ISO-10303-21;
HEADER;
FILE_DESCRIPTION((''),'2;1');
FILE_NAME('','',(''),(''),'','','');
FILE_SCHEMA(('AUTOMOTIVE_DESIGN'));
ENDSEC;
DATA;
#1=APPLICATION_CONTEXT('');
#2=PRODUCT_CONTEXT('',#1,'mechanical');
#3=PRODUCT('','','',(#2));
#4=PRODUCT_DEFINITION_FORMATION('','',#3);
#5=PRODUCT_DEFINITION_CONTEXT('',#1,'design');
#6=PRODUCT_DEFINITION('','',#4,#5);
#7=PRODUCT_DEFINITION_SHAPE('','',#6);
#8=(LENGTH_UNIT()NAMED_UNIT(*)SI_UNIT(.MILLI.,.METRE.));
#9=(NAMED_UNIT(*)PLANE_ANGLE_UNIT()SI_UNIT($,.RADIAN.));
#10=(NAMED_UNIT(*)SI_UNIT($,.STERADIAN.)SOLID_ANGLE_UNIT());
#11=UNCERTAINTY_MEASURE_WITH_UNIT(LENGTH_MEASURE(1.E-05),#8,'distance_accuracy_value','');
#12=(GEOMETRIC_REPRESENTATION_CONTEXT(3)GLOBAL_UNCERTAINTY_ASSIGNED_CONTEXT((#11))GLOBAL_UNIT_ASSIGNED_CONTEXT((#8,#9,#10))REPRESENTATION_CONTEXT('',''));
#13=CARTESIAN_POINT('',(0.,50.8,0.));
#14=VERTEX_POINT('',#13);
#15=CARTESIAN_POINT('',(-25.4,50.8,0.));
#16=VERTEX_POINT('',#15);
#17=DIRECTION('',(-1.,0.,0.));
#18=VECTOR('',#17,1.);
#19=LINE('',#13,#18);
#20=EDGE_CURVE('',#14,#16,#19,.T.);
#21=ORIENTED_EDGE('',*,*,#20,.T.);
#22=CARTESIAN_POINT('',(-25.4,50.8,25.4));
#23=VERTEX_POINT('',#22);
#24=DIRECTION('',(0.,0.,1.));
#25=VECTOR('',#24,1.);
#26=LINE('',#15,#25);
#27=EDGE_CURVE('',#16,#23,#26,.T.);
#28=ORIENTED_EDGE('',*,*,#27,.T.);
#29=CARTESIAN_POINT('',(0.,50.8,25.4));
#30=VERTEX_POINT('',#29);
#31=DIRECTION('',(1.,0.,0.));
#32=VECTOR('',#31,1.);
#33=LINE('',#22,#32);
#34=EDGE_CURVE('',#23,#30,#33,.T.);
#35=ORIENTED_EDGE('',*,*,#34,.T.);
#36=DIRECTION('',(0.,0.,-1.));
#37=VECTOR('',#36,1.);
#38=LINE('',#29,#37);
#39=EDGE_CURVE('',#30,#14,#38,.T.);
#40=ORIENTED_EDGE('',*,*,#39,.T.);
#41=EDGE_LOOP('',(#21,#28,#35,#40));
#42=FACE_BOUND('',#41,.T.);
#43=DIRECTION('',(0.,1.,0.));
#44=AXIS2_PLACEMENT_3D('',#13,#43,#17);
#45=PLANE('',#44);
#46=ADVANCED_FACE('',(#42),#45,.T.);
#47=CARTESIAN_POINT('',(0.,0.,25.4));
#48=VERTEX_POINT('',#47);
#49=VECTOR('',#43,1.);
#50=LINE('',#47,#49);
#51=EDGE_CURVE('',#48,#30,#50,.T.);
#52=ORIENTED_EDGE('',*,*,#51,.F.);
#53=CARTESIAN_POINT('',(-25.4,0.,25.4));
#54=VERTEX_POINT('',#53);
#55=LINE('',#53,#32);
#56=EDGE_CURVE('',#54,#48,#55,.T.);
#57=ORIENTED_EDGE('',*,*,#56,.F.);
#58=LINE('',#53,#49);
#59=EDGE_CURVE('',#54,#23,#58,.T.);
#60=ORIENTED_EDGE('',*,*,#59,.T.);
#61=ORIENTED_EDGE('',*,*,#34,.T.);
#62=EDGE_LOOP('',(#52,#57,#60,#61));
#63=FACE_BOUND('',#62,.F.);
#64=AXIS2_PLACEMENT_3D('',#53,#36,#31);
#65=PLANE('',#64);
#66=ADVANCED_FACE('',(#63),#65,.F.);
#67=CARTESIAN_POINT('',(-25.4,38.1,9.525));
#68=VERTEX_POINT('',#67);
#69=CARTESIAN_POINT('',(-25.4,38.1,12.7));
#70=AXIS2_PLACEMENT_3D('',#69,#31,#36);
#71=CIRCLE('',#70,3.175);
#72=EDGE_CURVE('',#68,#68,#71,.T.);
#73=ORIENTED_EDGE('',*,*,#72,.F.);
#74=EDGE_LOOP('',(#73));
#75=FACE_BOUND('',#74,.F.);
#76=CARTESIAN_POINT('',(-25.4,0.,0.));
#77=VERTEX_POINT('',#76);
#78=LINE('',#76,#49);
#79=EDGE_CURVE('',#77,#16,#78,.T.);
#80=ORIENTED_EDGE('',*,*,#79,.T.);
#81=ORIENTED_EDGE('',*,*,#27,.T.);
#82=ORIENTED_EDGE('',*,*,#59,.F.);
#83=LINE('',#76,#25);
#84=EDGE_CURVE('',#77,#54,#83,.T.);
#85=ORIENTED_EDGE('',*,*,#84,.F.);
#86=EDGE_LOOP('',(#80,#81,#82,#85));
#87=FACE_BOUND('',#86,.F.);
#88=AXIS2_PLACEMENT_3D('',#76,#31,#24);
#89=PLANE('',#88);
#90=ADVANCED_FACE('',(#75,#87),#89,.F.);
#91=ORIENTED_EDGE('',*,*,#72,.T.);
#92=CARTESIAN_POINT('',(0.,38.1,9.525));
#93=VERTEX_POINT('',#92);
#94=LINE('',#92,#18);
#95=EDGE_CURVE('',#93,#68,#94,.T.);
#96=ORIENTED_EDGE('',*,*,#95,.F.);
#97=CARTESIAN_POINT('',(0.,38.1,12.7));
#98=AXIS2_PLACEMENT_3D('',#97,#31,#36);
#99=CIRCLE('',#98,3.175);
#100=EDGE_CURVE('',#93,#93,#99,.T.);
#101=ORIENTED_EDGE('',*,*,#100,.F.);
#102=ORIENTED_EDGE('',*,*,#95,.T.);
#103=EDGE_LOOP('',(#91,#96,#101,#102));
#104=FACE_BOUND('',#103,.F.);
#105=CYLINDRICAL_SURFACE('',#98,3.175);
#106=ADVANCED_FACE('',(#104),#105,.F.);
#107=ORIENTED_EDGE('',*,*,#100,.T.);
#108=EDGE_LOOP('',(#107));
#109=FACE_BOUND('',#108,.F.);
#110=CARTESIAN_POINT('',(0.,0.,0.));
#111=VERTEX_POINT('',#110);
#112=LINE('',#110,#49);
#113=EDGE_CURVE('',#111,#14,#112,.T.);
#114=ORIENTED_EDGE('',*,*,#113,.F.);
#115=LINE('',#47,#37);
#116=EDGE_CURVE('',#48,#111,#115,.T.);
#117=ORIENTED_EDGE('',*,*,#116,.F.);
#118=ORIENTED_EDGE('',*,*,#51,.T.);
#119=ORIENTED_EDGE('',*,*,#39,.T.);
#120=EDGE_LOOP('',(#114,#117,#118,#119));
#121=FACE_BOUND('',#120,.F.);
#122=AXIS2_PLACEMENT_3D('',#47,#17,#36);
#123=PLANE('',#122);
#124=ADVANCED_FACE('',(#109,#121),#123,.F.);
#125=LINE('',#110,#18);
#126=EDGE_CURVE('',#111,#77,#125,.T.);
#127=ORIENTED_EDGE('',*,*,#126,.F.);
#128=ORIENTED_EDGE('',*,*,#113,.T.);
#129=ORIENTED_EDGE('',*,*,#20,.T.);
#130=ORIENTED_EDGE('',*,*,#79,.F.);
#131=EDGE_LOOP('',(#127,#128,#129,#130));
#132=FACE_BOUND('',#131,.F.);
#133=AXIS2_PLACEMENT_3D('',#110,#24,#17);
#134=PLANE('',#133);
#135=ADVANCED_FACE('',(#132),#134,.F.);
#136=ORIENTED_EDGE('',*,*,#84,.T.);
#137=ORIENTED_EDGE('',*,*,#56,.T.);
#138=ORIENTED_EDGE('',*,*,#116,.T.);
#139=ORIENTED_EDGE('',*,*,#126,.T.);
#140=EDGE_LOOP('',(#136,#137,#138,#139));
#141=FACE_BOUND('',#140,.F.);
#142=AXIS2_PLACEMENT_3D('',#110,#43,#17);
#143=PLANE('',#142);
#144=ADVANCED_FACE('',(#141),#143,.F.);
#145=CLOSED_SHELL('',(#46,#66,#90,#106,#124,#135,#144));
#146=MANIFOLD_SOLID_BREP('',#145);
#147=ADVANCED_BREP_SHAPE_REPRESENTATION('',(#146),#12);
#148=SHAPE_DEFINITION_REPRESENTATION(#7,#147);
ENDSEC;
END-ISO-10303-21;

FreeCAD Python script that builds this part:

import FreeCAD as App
import Part
import Sketcher
Q = App.Units.Quantity

doc = App.newDocument("Part")
body = doc.addObject("PartDesign::Body", "Body")

# Sketch on XZ plane
sketch1 = body.newObject("Sketcher::SketchObject", "Sketch")
sketch1.AttachmentSupport = (doc.getObject("XZ_Plane"), [""])
sketch1.MapMode = "FlatFace"
sketch1.addGeometry([
    Part.LineSegment(App.Vector(0, 25, 0), App.Vector(0, 0, 0)),
    Part.LineSegment(App.Vector(0, 0, 0), App.Vector(-25, 0, 0)),
    Part.LineSegment(App.Vector(-25, 0, 0), App.Vector(-25, 25, 0)),
    Part.LineSegment(App.Vector(-25, 25, 0), App.Vector(0, 25, 0)),
], False)
sketch1.addConstraint([
    Sketcher.Constraint("Coincident", 0, 2, 1, 1),
    Sketcher.Constraint("Coincident", 1, 2, 2, 1),
    Sketcher.Constraint("Coincident", 2, 2, 3, 1),
    Sketcher.Constraint("Coincident", 3, 2, 0, 1),
    Sketcher.Constraint("Vertical", 0),
    Sketcher.Constraint("Horizontal", 1),
    Sketcher.Constraint("Vertical", 2),
    Sketcher.Constraint("Horizontal", 3),
    Sketcher.Constraint("Coincident", 0, 2, -1, 1),
    Sketcher.Constraint("Equal", 3, 0),
    Sketcher.Constraint("DistanceX", 1, 2, 1, 1, Q("1 in")),
])
pad1 = body.newObject("PartDesign::Pad", "Pad")
pad1.Profile = sketch1
pad1.Length = Q("2 in")
pad1.Reversed = True

# Sketch on YZ plane
sketch2 = body.newObject("Sketcher::SketchObject", "Sketch001")
sketch2.AttachmentSupport = (doc.getObject("YZ_Plane"), [""])
sketch2.MapMode = "FlatFace"
sketch2.addGeometry(Part.Circle(App.Vector(38.1, 12.7, 0), App.Vector(0, 0, 1), 3.2), False)
sketch2.addConstraint([
    Sketcher.Constraint("Diameter", 0, Q("0.25 in")),
    Sketcher.Constraint("DistanceY", -1, 1, 0, 3, Q("0.5 in")),
    Sketcher.Constraint("DistanceX", -1, 1, 0, 3, Q("1.5 in")),
])
pocket1 = body.newObject("PartDesign::Pocket", "Pocket")
pocket1.Profile = sketch2
pocket1.Length = Q("2 in")

doc.recompute()
